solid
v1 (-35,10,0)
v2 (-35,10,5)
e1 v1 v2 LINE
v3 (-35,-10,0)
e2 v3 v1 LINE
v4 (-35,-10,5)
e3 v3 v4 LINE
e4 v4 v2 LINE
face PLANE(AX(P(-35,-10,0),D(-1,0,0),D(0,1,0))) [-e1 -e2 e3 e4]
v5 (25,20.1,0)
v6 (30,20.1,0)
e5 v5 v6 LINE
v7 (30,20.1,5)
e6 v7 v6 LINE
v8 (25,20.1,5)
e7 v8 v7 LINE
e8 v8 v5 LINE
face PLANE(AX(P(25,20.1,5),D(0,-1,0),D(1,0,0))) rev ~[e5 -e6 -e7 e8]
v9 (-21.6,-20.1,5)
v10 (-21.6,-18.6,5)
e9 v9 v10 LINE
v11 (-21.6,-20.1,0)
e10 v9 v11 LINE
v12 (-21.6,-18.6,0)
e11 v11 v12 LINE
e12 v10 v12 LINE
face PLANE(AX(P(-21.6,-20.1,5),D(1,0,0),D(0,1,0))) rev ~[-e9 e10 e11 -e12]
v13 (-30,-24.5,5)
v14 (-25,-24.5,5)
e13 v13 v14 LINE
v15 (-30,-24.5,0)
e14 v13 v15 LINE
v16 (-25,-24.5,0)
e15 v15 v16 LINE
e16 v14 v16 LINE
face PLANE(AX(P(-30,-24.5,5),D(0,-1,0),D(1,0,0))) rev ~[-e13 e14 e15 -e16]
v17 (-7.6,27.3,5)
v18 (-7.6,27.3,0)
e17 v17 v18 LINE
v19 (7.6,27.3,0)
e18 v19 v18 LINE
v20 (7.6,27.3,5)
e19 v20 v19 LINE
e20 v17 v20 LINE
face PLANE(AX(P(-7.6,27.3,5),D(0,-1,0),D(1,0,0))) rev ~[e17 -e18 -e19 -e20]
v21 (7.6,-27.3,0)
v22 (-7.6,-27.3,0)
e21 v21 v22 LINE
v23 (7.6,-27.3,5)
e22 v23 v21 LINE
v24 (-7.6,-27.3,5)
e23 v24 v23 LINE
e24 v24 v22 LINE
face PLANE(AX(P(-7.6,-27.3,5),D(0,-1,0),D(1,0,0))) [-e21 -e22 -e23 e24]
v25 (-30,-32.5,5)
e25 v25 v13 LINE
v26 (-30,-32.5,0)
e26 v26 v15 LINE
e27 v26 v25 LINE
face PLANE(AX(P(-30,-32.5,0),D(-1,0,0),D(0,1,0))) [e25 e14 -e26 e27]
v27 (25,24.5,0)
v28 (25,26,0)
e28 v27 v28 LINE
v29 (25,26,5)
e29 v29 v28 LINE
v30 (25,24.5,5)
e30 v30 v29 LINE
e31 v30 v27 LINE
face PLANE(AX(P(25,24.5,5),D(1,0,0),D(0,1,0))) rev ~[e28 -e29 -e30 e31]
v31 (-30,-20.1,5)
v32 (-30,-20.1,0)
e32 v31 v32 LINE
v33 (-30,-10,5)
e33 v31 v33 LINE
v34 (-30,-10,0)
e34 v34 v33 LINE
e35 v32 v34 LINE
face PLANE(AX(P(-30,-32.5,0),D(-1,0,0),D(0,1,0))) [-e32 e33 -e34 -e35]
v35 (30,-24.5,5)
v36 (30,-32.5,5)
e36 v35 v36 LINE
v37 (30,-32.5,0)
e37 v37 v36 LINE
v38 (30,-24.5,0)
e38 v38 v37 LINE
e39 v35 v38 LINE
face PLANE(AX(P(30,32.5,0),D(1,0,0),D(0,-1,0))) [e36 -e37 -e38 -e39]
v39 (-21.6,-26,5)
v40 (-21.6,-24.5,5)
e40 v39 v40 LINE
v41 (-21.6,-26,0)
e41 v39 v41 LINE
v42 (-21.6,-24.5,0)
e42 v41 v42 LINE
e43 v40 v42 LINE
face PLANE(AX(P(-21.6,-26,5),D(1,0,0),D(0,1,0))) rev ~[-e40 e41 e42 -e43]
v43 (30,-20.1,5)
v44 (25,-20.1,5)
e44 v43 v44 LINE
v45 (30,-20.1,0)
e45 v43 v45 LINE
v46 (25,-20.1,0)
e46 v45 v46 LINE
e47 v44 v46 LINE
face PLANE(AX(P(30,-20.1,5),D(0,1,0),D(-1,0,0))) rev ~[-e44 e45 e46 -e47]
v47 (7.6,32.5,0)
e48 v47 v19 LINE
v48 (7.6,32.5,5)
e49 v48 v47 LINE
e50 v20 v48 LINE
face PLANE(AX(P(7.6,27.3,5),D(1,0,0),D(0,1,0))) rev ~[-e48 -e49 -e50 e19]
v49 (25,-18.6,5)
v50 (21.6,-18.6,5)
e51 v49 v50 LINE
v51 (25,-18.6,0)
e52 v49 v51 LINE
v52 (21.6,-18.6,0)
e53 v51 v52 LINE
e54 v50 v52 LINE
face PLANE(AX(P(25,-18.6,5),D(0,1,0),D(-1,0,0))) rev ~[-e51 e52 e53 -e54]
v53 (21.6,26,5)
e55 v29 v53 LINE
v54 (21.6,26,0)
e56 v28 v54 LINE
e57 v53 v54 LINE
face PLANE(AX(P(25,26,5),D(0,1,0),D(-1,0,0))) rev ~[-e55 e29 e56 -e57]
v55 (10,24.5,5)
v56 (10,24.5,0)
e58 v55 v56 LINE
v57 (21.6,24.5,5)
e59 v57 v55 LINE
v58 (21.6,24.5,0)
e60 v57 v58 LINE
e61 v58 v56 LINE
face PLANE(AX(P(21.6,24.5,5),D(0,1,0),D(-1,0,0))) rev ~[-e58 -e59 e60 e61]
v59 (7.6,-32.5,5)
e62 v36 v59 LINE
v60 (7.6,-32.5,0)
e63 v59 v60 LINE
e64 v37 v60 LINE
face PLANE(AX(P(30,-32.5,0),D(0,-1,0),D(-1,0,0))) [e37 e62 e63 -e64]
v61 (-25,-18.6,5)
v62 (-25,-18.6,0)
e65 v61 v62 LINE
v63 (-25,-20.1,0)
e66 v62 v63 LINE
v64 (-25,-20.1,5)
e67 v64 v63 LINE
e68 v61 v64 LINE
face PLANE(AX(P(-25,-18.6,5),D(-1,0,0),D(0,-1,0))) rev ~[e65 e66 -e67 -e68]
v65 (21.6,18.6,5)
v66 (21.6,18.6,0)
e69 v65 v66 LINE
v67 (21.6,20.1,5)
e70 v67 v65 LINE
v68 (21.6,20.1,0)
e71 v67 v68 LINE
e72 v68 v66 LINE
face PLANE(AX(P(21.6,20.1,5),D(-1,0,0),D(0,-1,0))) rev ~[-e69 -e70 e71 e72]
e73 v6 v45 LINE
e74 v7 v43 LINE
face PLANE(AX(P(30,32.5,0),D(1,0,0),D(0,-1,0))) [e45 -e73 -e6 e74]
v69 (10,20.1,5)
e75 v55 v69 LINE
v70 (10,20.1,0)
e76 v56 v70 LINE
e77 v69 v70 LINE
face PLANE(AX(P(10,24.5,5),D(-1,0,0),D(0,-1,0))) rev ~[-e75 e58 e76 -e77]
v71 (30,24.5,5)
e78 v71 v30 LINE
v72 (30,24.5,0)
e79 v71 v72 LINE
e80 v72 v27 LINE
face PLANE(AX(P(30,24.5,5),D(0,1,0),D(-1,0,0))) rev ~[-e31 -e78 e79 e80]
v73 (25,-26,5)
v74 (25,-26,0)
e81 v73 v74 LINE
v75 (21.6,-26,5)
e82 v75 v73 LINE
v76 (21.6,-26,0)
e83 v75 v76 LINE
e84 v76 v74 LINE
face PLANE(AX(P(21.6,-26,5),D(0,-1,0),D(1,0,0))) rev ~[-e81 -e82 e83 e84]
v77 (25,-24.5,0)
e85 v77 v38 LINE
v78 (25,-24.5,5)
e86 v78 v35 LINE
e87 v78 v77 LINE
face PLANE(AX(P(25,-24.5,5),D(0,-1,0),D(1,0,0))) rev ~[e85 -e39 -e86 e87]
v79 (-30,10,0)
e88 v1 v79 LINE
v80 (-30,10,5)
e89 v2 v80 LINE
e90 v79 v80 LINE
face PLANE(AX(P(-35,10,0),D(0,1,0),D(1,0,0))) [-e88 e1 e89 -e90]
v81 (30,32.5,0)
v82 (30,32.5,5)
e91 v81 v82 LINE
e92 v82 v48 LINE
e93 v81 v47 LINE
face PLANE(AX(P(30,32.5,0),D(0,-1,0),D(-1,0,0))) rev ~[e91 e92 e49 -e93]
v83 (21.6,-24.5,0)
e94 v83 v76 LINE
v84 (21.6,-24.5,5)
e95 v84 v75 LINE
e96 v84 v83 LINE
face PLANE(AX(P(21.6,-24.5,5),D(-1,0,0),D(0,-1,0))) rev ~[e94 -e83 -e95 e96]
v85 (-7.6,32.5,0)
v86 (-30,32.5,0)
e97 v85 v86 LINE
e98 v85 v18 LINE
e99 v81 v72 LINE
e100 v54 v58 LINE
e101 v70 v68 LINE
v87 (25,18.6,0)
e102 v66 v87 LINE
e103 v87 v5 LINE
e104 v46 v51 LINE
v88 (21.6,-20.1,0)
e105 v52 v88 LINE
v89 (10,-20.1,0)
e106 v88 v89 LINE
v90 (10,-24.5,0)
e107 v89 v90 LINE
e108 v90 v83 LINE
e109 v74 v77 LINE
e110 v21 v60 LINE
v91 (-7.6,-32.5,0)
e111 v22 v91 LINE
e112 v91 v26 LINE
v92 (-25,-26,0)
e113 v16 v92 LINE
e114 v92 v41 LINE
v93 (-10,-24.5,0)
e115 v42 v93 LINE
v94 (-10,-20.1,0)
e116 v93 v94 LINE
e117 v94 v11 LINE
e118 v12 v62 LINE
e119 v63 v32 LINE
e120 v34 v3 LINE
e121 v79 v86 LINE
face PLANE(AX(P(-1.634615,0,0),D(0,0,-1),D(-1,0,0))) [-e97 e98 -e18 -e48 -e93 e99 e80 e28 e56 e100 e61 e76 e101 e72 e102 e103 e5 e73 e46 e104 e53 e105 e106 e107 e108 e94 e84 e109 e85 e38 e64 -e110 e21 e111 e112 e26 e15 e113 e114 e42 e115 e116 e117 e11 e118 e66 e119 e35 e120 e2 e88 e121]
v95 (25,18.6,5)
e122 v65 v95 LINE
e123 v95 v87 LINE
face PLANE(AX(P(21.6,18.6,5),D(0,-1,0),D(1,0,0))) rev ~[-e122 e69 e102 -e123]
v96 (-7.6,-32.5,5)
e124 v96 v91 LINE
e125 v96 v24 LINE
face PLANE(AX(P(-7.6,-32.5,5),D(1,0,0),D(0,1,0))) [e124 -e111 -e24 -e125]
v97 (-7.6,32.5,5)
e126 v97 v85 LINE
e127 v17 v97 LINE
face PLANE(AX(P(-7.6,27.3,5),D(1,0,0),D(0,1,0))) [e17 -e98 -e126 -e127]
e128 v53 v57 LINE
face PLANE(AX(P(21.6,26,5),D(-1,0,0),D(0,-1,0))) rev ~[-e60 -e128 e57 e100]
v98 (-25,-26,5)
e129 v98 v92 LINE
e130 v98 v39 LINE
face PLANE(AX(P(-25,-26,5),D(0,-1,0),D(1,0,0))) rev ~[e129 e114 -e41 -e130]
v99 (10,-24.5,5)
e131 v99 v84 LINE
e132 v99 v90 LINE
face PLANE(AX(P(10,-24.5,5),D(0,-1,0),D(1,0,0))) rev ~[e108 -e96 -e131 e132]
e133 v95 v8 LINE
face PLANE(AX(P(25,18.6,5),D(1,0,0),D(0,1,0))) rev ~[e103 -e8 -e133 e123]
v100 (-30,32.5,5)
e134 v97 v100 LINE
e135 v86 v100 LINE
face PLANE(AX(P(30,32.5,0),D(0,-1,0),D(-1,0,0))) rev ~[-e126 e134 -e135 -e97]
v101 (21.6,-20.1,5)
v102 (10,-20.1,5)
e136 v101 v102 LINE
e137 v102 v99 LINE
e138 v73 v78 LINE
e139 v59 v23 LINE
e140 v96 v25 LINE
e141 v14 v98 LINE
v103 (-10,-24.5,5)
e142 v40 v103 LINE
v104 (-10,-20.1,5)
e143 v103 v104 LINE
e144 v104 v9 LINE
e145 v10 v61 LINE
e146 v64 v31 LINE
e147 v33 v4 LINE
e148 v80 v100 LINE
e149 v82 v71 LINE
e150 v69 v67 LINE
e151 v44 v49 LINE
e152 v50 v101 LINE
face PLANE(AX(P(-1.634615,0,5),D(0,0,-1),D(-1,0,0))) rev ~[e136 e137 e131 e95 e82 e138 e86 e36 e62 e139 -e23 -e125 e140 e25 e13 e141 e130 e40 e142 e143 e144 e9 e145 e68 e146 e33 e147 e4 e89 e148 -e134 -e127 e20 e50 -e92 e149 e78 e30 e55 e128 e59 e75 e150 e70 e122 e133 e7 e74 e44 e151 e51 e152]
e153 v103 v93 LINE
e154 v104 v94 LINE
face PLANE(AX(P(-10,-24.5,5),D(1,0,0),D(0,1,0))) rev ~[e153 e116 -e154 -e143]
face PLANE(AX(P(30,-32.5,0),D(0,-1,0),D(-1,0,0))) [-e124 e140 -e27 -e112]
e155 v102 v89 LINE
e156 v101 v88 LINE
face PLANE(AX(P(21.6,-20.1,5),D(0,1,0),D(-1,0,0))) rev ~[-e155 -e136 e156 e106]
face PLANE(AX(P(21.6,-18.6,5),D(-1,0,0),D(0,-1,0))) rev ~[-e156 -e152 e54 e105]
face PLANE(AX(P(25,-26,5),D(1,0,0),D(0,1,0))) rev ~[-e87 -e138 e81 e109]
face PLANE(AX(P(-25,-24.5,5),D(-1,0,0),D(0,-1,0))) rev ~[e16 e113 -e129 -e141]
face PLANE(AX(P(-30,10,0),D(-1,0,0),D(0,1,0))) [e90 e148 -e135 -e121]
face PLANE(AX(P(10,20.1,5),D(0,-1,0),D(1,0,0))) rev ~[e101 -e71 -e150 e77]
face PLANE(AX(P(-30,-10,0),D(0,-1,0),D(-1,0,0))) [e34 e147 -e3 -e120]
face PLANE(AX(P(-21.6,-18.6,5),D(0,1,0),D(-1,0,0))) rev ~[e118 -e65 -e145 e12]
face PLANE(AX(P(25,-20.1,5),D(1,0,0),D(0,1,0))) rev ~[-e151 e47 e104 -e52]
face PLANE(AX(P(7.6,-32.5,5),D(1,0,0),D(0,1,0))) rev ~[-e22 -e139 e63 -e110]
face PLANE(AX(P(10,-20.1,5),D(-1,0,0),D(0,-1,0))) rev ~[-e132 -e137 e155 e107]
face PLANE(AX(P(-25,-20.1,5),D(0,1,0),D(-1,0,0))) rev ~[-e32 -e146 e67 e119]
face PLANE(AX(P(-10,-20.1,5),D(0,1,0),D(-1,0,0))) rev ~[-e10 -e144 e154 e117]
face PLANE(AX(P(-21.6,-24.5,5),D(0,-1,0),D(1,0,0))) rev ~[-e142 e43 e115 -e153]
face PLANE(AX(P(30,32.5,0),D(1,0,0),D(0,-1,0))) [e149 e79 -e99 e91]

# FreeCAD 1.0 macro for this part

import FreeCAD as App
import Part
import Sketcher

V = App.Vector


def add_polygon(sketch, points):
    """Adds a closed chain of lines whose ends are joined by coincident constraints."""
    first, n = sketch.GeometryCount, len(points)
    for a, b in zip(points, points[1:] + points[:1]):
        sketch.addGeometry(Part.LineSegment(App.Vector(*a, 0), App.Vector(*b, 0)), False)
    for i in range(n):
        sketch.addConstraint(Sketcher.Constraint("Coincident", first + i, 2, first + (i + 1) % n, 1))

doc = App.newDocument("Part")
body = doc.addObject("PartDesign::Body", "Body")

sketch1 = body.newObject("Sketcher::SketchObject", "Sketch")
sketch1.AttachmentSupport = (doc.getObject("XY_Plane"), [""])
sketch1.MapMode = "FlatFace"
add_polygon(sketch1, [(30, 32), (-30, 32), (-30, 10), (-35, 10), (-35, -10), (-30, -10), (-30, -32), (30, -32)])
sketch1.addConstraint(Sketcher.Constraint("Horizontal", 0))
sketch1.addConstraint(Sketcher.Constraint("Vertical", 1))
sketch1.addConstraint(Sketcher.Constraint("Horizontal", 2))
sketch1.addConstraint(Sketcher.Constraint("Vertical", 3))
sketch1.addConstraint(Sketcher.Constraint("Horizontal", 4))
sketch1.addConstraint(Sketcher.Constraint("Vertical", 5))
sketch1.addConstraint(Sketcher.Constraint("Horizontal", 6))
sketch1.addConstraint(Sketcher.Constraint("Vertical", 7))
sketch1.addConstraint(Sketcher.Constraint("Symmetric", 0, 2, 6, 2, -1, 1))
sketch1.addConstraint(Sketcher.Constraint("Symmetric", 1, 2, 4, 2, -1))
sketch1.addConstraint(Sketcher.Constraint("DistanceX", 0, 2, 0, 1, 60.0))
sketch1.addConstraint(Sketcher.Constraint("DistanceX", 2, 2, 2, 1, 5.0))
sketch1.addConstraint(Sketcher.Constraint("DistanceY", 3, 2, 3, 1, 20.0))
sketch1.addConstraint(Sketcher.Constraint("DistanceY", 7, 1, 7, 2, 65.0))
pad1 = body.newObject("PartDesign::Pad", "Pad")
pad1.Profile = sketch1
pad1.Length = 5

sketch2 = body.newObject("Sketcher::SketchObject", "Sketch001")
sketch2.AttachmentSupport = (doc.getObject("XY_Plane"), [""])
sketch2.MapMode = "FlatFace"
sketch2.AttachmentOffset = App.Placement(V(0, 0, 5), App.Rotation())
add_polygon(sketch2, [(30, 24.5), (25, 24.5), (25, 26), (21.6, 26), (21.6, 24.5), (10, 24.5), (10, 20.1), (21.6, 20.1), (21.6, 18.6), (25, 18.6), (25, 20.1), (30, 20.1)])
add_polygon(sketch2, [(30, -24.5), (30, -20.1), (25, -20.1), (25, -18.6), (21.6, -18.6), (21.6, -20.1), (10, -20.1), (10, -24.5), (21.6, -24.5), (21.6, -26), (25, -26), (25, -24.5)])
add_polygon(sketch2, [(-30, -24.5), (-25, -24.5), (-25, -26), (-21.6, -26), (-21.6, -24.5), (-10, -24.5), (-10, -20.1), (-21.6, -20.1), (-21.6, -18.6), (-25, -18.6), (-25, -20.1), (-30, -20.1)])
sketch2.addConstraint(Sketcher.Constraint("Horizontal", 0))
sketch2.addConstraint(Sketcher.Constraint("Vertical", 1))
sketch2.addConstraint(Sketcher.Constraint("Horizontal", 2))
sketch2.addConstraint(Sketcher.Constraint("Vertical", 3))
sketch2.addConstraint(Sketcher.Constraint("Horizontal", 4))
sketch2.addConstraint(Sketcher.Constraint("Vertical", 5))
sketch2.addConstraint(Sketcher.Constraint("Horizontal", 6))
sketch2.addConstraint(Sketcher.Constraint("Vertical", 7))
sketch2.addConstraint(Sketcher.Constraint("Horizontal", 8))
sketch2.addConstraint(Sketcher.Constraint("Vertical", 9))
sketch2.addConstraint(Sketcher.Constraint("Horizontal", 10))
sketch2.addConstraint(Sketcher.Constraint("Vertical", 11))
sketch2.addConstraint(Sketcher.Constraint("Vertical", 12))
sketch2.addConstraint(Sketcher.Constraint("Horizontal", 13))
sketch2.addConstraint(Sketcher.Constraint("Vertical", 14))
sketch2.addConstraint(Sketcher.Constraint("Horizontal", 15))
sketch2.addConstraint(Sketcher.Constraint("Vertical", 16))
sketch2.addConstraint(Sketcher.Constraint("Horizontal", 17))
sketch2.addConstraint(Sketcher.Constraint("Vertical", 18))
sketch2.addConstraint(Sketcher.Constraint("Horizontal", 19))
sketch2.addConstraint(Sketcher.Constraint("Vertical", 20))
sketch2.addConstraint(Sketcher.Constraint("Horizontal", 21))
sketch2.addConstraint(Sketcher.Constraint("Vertical", 22))
sketch2.addConstraint(Sketcher.Constraint("Horizontal", 23))
sketch2.addConstraint(Sketcher.Constraint("Horizontal", 24))
sketch2.addConstraint(Sketcher.Constraint("Vertical", 25))
sketch2.addConstraint(Sketcher.Constraint("Horizontal", 26))
sketch2.addConstraint(Sketcher.Constraint("Vertical", 27))
sketch2.addConstraint(Sketcher.Constraint("Horizontal", 28))
sketch2.addConstraint(Sketcher.Constraint("Vertical", 29))
sketch2.addConstraint(Sketcher.Constraint("Horizontal", 30))
sketch2.addConstraint(Sketcher.Constraint("Vertical", 31))
sketch2.addConstraint(Sketcher.Constraint("Horizontal", 32))
sketch2.addConstraint(Sketcher.Constraint("Vertical", 33))
sketch2.addConstraint(Sketcher.Constraint("Horizontal", 34))
sketch2.addConstraint(Sketcher.Constraint("Vertical", 35))
sketch2.addConstraint(Sketcher.Constraint("Symmetric", 0, 2, 24, 2, -1, 1))
sketch2.addConstraint(Sketcher.Constraint("Symmetric", 2, 2, 26, 2, -1, 1))
sketch2.addConstraint(Sketcher.Constraint("Symmetric", 4, 2, 28, 2, -1, 1))
sketch2.addConstraint(Sketcher.Constraint("Symmetric", 6, 2, 30, 2, -1, 1))
sketch2.addConstraint(Sketcher.Constraint("Symmetric", 8, 2, 32, 2, -1, 1))
sketch2.addConstraint(Sketcher.Constraint("Symmetric", 10, 2, 34, 2, -1, 1))
sketch2.addConstraint(Sketcher.Constraint("Symmetric", 22, 2, 24, 2, -2))
sketch2.addConstraint(Sketcher.Constraint("Symmetric", 20, 2, 26, 2, -2))
sketch2.addConstraint(Sketcher.Constraint("Symmetric", 18, 2, 28, 2, -2))
sketch2.addConstraint(Sketcher.Constraint("Symmetric", 16, 2, 30, 2, -2))
sketch2.addConstraint(Sketcher.Constraint("Symmetric", 14, 2, 32, 2, -2))
sketch2.addConstraint(Sketcher.Constraint("Symmetric", 12, 2, 34, 2, -2))
sketch2.addConstraint(Sketcher.Constraint("Horizontal", 0, 2, 3, 2))
sketch2.addConstraint(Sketcher.Constraint("Horizontal", 6, 2, 9, 2))
sketch2.addConstraint(Sketcher.Constraint("Vertical", 3, 2, 6, 2))
sketch2.addConstraint(Sketcher.Constraint("Vertical", 1, 2, 8, 2))
sketch2.addConstraint(Sketcher.Constraint("Equal", 3, 7))
sketch2.addConstraint(Sketcher.Constraint("DistanceX", 0, 2, 0, 1, 5.0))
sketch2.addConstraint(Sketcher.Constraint("DistanceX", 2, 2, 2, 1, 3.4))
sketch2.addConstraint(Sketcher.Constraint("DistanceX", 4, 2, 4, 1, 11.6))
sketch2.addConstraint(Sketcher.Constraint("DistanceY", 1, 1, 1, 2, 1.5))
sketch2.addConstraint(Sketcher.Constraint("DistanceY", 5, 2, 5, 1, 4.4))
sketch2.addConstraint(Sketcher.Constraint("DistanceX", -1, 1, 0, 2, 25.0))
sketch2.addConstraint(Sketcher.Constraint("DistanceY", -1, 1, 1, 2, 26.0))
pocket1 = body.newObject("PartDesign::Pocket", "Pocket")
pocket1.Profile = sketch2
pocket1.Length = 5

sketch3 = body.newObject("Sketcher::SketchObject", "Sketch002")
sketch3.AttachmentSupport = (doc.getObject("XY_Plane"), [""])
sketch3.MapMode = "FlatFace"
sketch3.AttachmentOffset = App.Placement(V(0, 0, 5), App.Rotation())
add_polygon(sketch3, [(-8, -27), (-8, -32), (8, -32), (8, -27)])
add_polygon(sketch3, [(-8, 32), (-8, 27), (8, 27), (8, 32)])
sketch3.addConstraint(Sketcher.Constraint("Vertical", 0))
sketch3.addConstraint(Sketcher.Constraint("Horizontal", 1))
sketch3.addConstraint(Sketcher.Constraint("Vertical", 2))
sketch3.addConstraint(Sketcher.Constraint("Horizontal", 3))
sketch3.addConstraint(Sketcher.Constraint("Vertical", 4))
sketch3.addConstraint(Sketcher.Constraint("Horizontal", 5))
sketch3.addConstraint(Sketcher.Constraint("Vertical", 6))
sketch3.addConstraint(Sketcher.Constraint("Horizontal", 7))
sketch3.addConstraint(Sketcher.Constraint("Symmetric", 2, 2, 4, 2, -1, 1))
sketch3.addConstraint(Sketcher.Constraint("Symmetric", 0, 2, 6, 2, -1, 1))
sketch3.addConstraint(Sketcher.Constraint("Vertical", 3, 2, 4, 2))
sketch3.addConstraint(Sketcher.Constraint("DistanceX", 1, 1, 1, 2, 15.2))
sketch3.addConstraint(Sketcher.Constraint("DistanceY", 0, 2, 0, 1, 5.2))
sketch3.addConstraint(Sketcher.Constraint("DistanceY", 1, 2, 6, 2, 65.0))
pocket2 = body.newObject("PartDesign::Pocket", "Pocket001")
pocket2.Profile = sketch3
pocket2.Length = 10

doc.recompute()
